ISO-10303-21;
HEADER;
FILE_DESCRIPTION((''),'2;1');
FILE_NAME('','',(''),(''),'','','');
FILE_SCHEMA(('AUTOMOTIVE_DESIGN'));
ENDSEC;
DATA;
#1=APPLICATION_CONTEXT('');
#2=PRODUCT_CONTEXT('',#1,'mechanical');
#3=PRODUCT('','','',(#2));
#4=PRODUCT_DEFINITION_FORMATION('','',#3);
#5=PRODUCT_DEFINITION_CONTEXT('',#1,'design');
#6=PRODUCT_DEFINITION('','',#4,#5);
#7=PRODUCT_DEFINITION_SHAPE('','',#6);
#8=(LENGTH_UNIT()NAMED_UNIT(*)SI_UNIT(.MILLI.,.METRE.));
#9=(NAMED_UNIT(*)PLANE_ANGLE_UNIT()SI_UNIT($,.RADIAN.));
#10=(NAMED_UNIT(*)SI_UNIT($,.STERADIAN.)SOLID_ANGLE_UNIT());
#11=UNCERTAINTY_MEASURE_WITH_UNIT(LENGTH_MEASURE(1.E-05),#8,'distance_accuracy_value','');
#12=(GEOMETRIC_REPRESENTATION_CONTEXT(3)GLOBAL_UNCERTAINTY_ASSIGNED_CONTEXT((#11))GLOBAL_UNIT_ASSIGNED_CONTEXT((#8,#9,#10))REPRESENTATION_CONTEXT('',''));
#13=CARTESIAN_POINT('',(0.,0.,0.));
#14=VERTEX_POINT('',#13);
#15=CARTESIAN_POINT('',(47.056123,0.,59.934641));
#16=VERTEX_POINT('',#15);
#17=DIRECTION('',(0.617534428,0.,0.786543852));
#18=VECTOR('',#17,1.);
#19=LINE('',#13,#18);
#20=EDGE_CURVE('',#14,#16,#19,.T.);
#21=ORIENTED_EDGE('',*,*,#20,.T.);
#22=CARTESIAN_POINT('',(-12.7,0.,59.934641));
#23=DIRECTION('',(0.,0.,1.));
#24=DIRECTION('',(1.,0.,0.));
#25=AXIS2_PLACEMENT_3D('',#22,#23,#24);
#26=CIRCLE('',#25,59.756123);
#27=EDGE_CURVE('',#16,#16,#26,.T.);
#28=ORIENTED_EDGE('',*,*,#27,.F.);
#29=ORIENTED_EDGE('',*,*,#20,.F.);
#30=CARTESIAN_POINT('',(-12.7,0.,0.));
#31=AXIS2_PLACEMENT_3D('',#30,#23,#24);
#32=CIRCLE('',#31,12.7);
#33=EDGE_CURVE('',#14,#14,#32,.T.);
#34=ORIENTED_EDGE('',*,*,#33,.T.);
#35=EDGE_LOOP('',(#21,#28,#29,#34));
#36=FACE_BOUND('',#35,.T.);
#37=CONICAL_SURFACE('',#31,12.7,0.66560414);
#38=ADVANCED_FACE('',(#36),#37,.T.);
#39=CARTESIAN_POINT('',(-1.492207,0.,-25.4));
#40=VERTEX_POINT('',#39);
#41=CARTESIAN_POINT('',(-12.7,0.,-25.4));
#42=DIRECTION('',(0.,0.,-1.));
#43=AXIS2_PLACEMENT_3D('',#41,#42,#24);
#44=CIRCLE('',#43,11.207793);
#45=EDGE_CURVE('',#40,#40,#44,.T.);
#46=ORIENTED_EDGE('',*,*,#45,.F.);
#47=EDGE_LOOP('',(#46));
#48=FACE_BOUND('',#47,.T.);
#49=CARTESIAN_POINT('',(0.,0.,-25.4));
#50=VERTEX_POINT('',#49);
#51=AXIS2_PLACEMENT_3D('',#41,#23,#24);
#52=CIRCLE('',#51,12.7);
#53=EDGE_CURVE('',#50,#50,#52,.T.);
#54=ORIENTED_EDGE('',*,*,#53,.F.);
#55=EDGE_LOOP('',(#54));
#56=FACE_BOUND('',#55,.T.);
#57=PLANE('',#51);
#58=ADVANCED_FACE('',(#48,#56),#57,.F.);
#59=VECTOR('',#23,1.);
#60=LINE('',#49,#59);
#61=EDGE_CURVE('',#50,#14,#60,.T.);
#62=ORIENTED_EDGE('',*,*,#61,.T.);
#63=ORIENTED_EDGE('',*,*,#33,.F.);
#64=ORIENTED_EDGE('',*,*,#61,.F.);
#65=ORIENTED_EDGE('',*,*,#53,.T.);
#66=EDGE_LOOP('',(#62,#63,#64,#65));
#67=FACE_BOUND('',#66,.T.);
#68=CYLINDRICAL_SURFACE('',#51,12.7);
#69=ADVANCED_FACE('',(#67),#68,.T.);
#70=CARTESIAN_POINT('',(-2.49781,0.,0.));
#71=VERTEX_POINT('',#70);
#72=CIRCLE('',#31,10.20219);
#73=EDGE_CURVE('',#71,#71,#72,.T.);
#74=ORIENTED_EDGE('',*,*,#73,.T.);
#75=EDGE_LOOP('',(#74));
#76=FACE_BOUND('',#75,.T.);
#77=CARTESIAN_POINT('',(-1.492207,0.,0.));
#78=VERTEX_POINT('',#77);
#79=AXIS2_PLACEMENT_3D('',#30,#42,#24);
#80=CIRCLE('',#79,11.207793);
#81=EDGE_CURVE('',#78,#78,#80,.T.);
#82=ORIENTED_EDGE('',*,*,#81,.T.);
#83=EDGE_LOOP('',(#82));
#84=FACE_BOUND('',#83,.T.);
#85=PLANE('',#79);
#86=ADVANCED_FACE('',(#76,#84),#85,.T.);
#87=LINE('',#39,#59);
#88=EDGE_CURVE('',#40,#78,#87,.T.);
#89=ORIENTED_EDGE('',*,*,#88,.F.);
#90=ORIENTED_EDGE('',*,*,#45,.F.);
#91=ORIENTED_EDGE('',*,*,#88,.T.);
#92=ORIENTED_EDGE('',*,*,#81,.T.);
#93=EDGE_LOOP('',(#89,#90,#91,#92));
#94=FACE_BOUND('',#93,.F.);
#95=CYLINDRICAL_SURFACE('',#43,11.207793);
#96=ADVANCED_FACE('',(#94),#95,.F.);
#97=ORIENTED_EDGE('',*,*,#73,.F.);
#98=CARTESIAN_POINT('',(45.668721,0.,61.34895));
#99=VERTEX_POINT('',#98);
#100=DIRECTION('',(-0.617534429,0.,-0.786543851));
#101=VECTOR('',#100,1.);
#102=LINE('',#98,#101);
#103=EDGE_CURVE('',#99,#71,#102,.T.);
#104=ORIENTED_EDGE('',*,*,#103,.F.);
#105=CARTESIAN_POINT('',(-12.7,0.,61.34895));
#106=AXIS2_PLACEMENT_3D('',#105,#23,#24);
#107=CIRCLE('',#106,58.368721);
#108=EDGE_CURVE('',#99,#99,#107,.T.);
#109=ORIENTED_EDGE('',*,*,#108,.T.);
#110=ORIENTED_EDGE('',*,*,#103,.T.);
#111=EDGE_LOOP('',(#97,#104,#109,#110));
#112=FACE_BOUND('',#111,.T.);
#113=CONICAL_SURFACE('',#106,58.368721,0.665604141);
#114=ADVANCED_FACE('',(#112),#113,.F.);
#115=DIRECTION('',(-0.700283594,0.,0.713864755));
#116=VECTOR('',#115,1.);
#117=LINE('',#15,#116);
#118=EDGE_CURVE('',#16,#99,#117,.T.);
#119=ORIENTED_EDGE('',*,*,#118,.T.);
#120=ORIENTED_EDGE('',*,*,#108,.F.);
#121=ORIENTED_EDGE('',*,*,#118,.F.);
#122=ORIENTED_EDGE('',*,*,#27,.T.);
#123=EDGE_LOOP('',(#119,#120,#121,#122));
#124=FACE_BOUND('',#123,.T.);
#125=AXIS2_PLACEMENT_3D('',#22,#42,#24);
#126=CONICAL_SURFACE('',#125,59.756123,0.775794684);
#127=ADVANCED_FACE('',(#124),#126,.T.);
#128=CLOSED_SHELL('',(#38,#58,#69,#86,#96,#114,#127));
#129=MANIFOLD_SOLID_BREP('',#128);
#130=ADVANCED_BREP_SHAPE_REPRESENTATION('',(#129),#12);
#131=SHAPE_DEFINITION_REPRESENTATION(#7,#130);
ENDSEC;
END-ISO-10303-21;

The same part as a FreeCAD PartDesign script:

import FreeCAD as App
import Part
import Sketcher

V = App.Vector
Q = App.Units.Quantity

doc = App.newDocument("Part")
body = doc.addObject("PartDesign::Body", "Body")

# Sketch on XZ plane
sketch1 = body.newObject("Sketcher::SketchObject", "Sketch")
sketch1.AttachmentSupport = (doc.getObject("XZ_Plane"), [""])
sketch1.MapMode = "FlatFace"
sketch1.addGeometry(Part.LineSegment(V(0, -25.4, 0), V(0, 0, 0)), False)
sketch1.addGeometry(Part.LineSegment(V(0, 0, 0), V(47.1, 59.9, 0)), False)
sketch1.addGeometry(Part.LineSegment(V(47.1, 59.9, 0), V(45.7, 61.3, 0)), False)
sketch1.addGeometry(Part.LineSegment(V(45.7, 61.3, 0), V(-2.5, 0, 0)), False)
sketch1.addGeometry(Part.LineSegment(V(-2.5, 0, 0), V(-12.7, 0, 0)), False)
sketch1.addGeometry(Part.LineSegment(V(-12.7, 0, 0), V(-12.7, -25.4, 0)), False)
sketch1.addGeometry(Part.LineSegment(V(-12.7, -25.4, 0), V(0, -25.4, 0)), False)
sketch1.addGeometry(Part.LineSegment(V(-12.7, -25.4, 0), V(-12.7, 61.3, 0)), True)  # axis
sketch1.addConstraint(Sketcher.Constraint("Coincident", 0, 2, 1, 1))
sketch1.addConstraint(Sketcher.Constraint("Coincident", 1, 2, 2, 1))
sketch1.addConstraint(Sketcher.Constraint("Coincident", 2, 2, 3, 1))
sketch1.addConstraint(Sketcher.Constraint("Coincident", 3, 2, 4, 1))
sketch1.addConstraint(Sketcher.Constraint("Coincident", 4, 2, 5, 1))
sketch1.addConstraint(Sketcher.Constraint("Coincident", 5, 2, 6, 1))
sketch1.addConstraint(Sketcher.Constraint("Coincident", 6, 2, 0, 1))
sketch1.addConstraint(Sketcher.Constraint("Vertical", 0))
sketch1.addConstraint(Sketcher.Constraint("Horizontal", 4))
sketch1.addConstraint(Sketcher.Constraint("Vertical", 5))
sketch1.addConstraint(Sketcher.Constraint("Horizontal", 6))
sketch1.addConstraint(Sketcher.Constraint("Vertical", 7))
sketch1.addConstraint(Sketcher.Constraint("Coincident", 0, 2, -1, 1))
sketch1.addConstraint(Sketcher.Constraint("Coincident", 7, 1, 5, 2))
sketch1.addConstraint(Sketcher.Constraint("PointOnObject", 3, 2, -1))
sketch1.addConstraint(Sketcher.Constraint("Parallel", 1, 3))
sketch1.addConstraint(Sketcher.Constraint("Horizontal", 2, 2, 7, 2))
sketch1.addConstraint(Sketcher.Constraint("DistanceY", 0, 1, 0, 2, Q("1 in")))
sketch1.addConstraint(Sketcher.Constraint("Distance", 1, Q("3 in")))
sketch1.addConstraint(Sketcher.Constraint("DistanceX", 6, 1, 6, 2, Q("0.5 in")))
sketch1.addConstraint(Sketcher.Constraint("Distance", 2, Q("0.078 in")))
sketch1.addConstraint(Sketcher.Constraint("DistanceX", 4, 2, 4, 1, Q("10.20219 mm")))
sketch1.addConstraint(Sketcher.Constraint("DistanceY", 7, 1, 7, 2, Q("86.74895 mm")))
revolution = body.newObject("PartDesign::Revolution", "Revolution")
revolution.Profile = sketch1
revolution.ReferenceAxis = (sketch1, ["Axis0"])
revolution.Angle = 360

# Sketch on XY plane
sketch2 = body.newObject("Sketcher::SketchObject", "Sketch001")
sketch2.AttachmentSupport = (doc.getObject("XY_Plane"), [""])
sketch2.MapMode = "FlatFace"
sketch2.AttachmentOffset = App.Placement(V(0, 0, -1 * 25.4), App.Rotation())
sketch2.addGeometry(Part.Circle(V(-13, 0, 0), V(0, 0, 1), 11), False)
sketch2.addConstraint(Sketcher.Constraint("PointOnObject", 0, 3, -1))
sketch2.addConstraint(Sketcher.Constraint("DistanceX", 0, 3, -1, 1, Q("0.5 in")))
sketch2.addConstraint(Sketcher.Constraint("Diameter", 0, Q("22.415586 mm")))
pocket1 = body.newObject("PartDesign::Pocket", "Pocket")
pocket1.Profile = sketch2
pocket1.Length = Q("1 in")
pocket1.Reversed = True

doc.recompute()
